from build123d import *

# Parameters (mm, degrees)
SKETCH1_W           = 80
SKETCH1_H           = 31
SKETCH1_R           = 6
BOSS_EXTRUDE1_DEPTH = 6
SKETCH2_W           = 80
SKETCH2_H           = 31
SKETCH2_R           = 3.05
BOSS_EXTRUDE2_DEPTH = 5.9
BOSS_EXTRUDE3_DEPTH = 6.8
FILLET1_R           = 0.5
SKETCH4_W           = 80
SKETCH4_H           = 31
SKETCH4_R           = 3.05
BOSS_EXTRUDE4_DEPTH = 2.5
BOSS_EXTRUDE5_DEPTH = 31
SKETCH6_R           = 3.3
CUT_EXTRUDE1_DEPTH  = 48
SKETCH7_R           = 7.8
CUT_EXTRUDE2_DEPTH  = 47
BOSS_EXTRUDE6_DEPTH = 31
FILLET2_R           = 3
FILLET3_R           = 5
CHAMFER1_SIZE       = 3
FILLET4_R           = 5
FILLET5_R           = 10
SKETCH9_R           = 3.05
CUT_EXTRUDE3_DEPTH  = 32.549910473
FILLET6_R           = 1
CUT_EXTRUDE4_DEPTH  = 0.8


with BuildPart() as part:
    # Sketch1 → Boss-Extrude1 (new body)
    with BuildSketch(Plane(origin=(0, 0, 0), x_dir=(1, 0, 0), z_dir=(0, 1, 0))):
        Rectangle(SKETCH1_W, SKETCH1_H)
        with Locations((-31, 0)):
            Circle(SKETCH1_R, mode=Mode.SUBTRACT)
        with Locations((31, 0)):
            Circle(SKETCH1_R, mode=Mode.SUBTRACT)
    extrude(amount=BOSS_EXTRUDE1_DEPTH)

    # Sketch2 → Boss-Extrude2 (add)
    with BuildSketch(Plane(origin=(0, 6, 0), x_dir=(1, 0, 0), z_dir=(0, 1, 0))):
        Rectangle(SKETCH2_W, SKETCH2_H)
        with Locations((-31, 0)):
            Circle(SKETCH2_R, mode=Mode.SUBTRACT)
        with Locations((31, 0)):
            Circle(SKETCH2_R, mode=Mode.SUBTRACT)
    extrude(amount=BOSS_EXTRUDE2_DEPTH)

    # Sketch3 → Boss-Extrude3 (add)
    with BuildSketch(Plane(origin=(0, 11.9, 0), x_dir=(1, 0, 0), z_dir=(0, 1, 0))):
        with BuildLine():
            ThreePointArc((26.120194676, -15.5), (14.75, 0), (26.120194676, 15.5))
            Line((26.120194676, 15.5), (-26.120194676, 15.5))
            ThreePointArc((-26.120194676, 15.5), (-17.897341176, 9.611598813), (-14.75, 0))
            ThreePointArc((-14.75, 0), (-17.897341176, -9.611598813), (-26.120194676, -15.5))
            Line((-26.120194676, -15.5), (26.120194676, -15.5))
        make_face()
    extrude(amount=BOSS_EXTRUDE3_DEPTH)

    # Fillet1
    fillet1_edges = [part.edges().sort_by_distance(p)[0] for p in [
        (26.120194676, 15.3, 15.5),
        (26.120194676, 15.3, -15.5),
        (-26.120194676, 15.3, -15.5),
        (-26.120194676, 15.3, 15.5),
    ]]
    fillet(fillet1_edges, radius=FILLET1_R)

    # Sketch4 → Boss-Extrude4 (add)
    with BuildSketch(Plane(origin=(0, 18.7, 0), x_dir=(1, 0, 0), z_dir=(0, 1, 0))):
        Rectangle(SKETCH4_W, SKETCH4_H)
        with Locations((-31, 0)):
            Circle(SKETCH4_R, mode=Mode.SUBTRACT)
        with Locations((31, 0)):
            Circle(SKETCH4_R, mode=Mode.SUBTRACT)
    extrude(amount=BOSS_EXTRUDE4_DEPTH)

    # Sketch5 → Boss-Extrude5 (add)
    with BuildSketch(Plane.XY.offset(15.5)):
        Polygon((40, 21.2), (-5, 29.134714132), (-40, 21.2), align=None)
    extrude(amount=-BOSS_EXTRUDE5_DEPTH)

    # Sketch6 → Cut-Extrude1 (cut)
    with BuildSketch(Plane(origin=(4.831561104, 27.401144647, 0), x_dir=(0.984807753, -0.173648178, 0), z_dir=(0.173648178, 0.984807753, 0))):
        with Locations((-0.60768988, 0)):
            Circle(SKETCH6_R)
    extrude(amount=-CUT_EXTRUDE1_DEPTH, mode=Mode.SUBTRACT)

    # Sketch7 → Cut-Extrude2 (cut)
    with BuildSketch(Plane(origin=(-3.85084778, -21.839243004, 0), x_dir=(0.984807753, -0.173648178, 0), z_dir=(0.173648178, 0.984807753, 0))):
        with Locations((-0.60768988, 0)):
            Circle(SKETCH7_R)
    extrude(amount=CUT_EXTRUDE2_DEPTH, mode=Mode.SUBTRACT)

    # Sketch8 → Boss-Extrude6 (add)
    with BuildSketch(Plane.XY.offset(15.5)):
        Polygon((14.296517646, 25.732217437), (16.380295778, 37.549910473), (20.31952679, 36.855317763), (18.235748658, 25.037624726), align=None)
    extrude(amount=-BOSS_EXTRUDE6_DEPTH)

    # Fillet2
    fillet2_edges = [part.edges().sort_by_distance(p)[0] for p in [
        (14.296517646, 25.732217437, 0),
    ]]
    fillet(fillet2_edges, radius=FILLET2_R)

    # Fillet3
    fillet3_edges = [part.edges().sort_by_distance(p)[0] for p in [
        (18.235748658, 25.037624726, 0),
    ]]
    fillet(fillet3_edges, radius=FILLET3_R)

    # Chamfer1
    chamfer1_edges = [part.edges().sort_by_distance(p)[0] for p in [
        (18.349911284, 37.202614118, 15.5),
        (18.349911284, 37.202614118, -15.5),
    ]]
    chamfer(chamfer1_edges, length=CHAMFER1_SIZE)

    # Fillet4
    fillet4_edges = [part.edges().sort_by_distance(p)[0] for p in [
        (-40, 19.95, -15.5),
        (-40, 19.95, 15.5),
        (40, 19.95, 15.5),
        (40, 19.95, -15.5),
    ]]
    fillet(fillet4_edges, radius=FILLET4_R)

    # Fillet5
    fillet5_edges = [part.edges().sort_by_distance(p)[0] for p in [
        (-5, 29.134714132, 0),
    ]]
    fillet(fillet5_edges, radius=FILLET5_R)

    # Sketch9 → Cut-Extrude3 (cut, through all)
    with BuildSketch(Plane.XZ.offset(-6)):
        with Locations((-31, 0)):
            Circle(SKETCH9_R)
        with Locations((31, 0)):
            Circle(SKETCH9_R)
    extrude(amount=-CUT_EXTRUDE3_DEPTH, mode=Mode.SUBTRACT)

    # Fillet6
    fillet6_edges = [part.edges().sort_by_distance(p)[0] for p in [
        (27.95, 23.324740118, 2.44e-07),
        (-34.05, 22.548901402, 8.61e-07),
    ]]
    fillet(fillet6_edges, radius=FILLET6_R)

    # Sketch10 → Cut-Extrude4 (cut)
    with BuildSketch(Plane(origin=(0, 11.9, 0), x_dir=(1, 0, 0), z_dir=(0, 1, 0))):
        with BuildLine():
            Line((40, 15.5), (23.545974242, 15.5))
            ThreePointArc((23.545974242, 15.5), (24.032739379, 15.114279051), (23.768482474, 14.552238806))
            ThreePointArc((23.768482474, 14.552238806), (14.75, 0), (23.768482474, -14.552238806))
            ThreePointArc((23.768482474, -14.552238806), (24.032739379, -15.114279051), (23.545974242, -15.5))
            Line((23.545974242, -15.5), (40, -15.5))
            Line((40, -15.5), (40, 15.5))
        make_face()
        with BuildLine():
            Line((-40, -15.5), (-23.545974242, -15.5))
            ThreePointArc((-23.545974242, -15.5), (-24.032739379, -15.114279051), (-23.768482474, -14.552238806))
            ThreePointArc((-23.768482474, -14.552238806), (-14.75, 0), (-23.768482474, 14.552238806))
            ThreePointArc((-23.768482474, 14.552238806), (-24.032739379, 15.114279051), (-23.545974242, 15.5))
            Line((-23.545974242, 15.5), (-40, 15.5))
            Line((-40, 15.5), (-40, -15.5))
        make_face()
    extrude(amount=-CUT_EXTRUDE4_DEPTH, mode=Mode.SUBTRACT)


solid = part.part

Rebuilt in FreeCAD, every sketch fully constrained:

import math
import FreeCAD as App
import Part
import Sketcher
from FreeCAD import Vector
Q = App.Units.Quantity


def edges_at(feature, points):
    """Names of the edges that pass closest to the given points."""
    edges = feature.Shape.Edges
    near = lambda p: min(range(len(edges)), key=lambda i: edges[i].distToShape(Part.Vertex(*p))[0])
    return sorted({f"Edge{near(p) + 1}" for p in points})

doc = App.newDocument("Part")
params = doc.addObject("Spreadsheet::Sheet", "Params")
for row, (alias, value) in enumerate([
    ("sketch1_diameter", "12 mm"),
    ("sketch1_width", "80 mm"),
    ("sketch1_height", "31 mm"),
    ("pad1_length", "6 mm"),
    ("sketch2_diameter", "6.1 mm"),
    ("sketch2_width", "80 mm"),
    ("sketch2_height", "31 mm"),
    ("pad2_length", "5.9 mm"),
    ("sketch3_radius", "16.25 mm"),
    ("pad3_length", "6.8 mm"),
    ("fillet_radius", "0.5 mm"),
    ("sketch4_diameter", "6.1 mm"),
    ("sketch4_width", "80 mm"),
    ("sketch4_height", "31 mm"),
    ("pad4_length", "2.5 mm"),
    ("sketch5_width", "80 mm"),
    ("pad5_length", "31 mm"),
    ("sketch6_diameter", "6.6 mm"),
    ("pocket1_length", "48 mm"),
    ("sketch7_diameter", "15.6 mm"),
    ("pocket2_length", "47 mm"),
    ("sketch8_length", "12 mm"),
    ("sketch8_length2", "4 mm"),
    ("pad6_length", "31 mm"),
    ("fillet2_radius", "3 mm"),
    ("fillet3_radius", "5 mm"),
    ("chamfer_size", "3 mm"),
    ("fillet4_radius", "5 mm"),
    ("fillet5_radius", "10 mm"),
    ("sketch9_diameter", "6.1 mm"),
    ("fillet6_radius", "1 mm"),
    ("sketch10_radius", "0.5 mm"),
    ("sketch10_height", "31 mm"),
    ("sketch10_radius2", "16.25 mm"),
    ("pocket4_length", "0.8 mm"),
], start=1):
    params.set(f"A{row}", alias)
    params.set(f"B{row}", "=" + value)
    params.setAlias(f"B{row}", alias)

body = doc.addObject("PartDesign::Body", "Body")

# Sketch on XZ plane
sketch1 = body.newObject("Sketcher::SketchObject", "Sketch")
sketch1.AttachmentSupport = (doc.getObject("XZ_Plane"), [""])
sketch1.MapMode = "FlatFace"
sketch1.addGeometry([
    Part.LineSegment(Vector(-40, -15.5, 0), Vector(-40, 15.5, 0)),  # 0
    Part.LineSegment(Vector(-40, 15.5, 0), Vector(40, 15.5, 0)),  # 1
    Part.LineSegment(Vector(40, 15.5, 0), Vector(40, -15.5, 0)),  # 2
    Part.LineSegment(Vector(40, -15.5, 0), Vector(-40, -15.5, 0)),  # 3
    Part.Circle(Vector(-31, 0, 0), Vector(0, 0, 1), 6),  # 4
    Part.Circle(Vector(31, 0, 0), Vector(0, 0, 1), 6),  # 5
], False)
sketch1.addConstraint([
    Sketcher.Constraint("Coincident", 0, 2, 1, 1),
    Sketcher.Constraint("Coincident", 1, 2, 2, 1),
    Sketcher.Constraint("Coincident", 2, 2, 3, 1),
    Sketcher.Constraint("Coincident", 3, 2, 0, 1),
    Sketcher.Constraint("Vertical", 0),
    Sketcher.Constraint("Horizontal", 1),
    Sketcher.Constraint("Vertical", 2),
    Sketcher.Constraint("Horizontal", 3),
    Sketcher.Constraint("Equal", 4, 5),
    Sketcher.Constraint("Symmetric", 4, 3, 5, 3, -1, 1),
    Sketcher.Constraint("Symmetric", 0, 2, 2, 2, -1, 1),
    Sketcher.Constraint("PointOnObject", 4, 3, -1),
    Sketcher.Constraint("Diameter", 4, Q("12 mm")),
    Sketcher.Constraint("DistanceX", 1, 1, 1, 2, Q("80 mm")),
    Sketcher.Constraint("DistanceY", 0, 1, 0, 2, Q("31 mm")),
    Sketcher.Constraint("DistanceX", 4, 3, -1, 1, Q("31 mm")),
])
sketch1.setExpression("Constraints[12]", "Params.sketch1_diameter")
sketch1.setExpression("Constraints[13]", "Params.sketch1_width")
sketch1.setExpression("Constraints[14]", "Params.sketch1_height")
pad1 = body.newObject("PartDesign::Pad", "Pad")
pad1.Profile = sketch1
pad1.setExpression("Length", "Params.pad1_length")
pad1.Reversed = True

# Sketch on XZ plane
sketch2 = body.newObject("Sketcher::SketchObject", "Sketch001")
sketch2.AttachmentSupport = (doc.getObject("XZ_Plane"), [""])
sketch2.MapMode = "FlatFace"
sketch2.AttachmentOffset = App.Placement(Vector(0, 0, -6), App.Rotation())
sketch2.addGeometry([
    Part.LineSegment(Vector(-40, -15.5, 0), Vector(-40, 15.5, 0)),  # 0
    Part.LineSegment(Vector(-40, 15.5, 0), Vector(40, 15.5, 0)),  # 1
    Part.LineSegment(Vector(40, 15.5, 0), Vector(40, -15.5, 0)),  # 2
    Part.LineSegment(Vector(40, -15.5, 0), Vector(-40, -15.5, 0)),  # 3
    Part.Circle(Vector(-31, 0, 0), Vector(0, 0, 1), 3.05),  # 4
    Part.Circle(Vector(31, 0, 0), Vector(0, 0, 1), 3.05),  # 5
], False)
sketch2.addConstraint([
    Sketcher.Constraint("Coincident", 0, 2, 1, 1),
    Sketcher.Constraint("Coincident", 1, 2, 2, 1),
    Sketcher.Constraint("Coincident", 2, 2, 3, 1),
    Sketcher.Constraint("Coincident", 3, 2, 0, 1),
    Sketcher.Constraint("Vertical", 0),
    Sketcher.Constraint("Horizontal", 1),
    Sketcher.Constraint("Vertical", 2),
    Sketcher.Constraint("Horizontal", 3),
    Sketcher.Constraint("Equal", 4, 5),
    Sketcher.Constraint("Symmetric", 4, 3, 5, 3, -1, 1),
    Sketcher.Constraint("Symmetric", 0, 2, 2, 2, -1, 1),
    Sketcher.Constraint("PointOnObject", 4, 3, -1),
    Sketcher.Constraint("Diameter", 4, Q("6.1 mm")),
    Sketcher.Constraint("DistanceX", 1, 1, 1, 2, Q("80 mm")),
    Sketcher.Constraint("DistanceY", 0, 1, 0, 2, Q("31 mm")),
    Sketcher.Constraint("DistanceX", 4, 3, -1, 1, Q("31 mm")),
])
sketch2.setExpression("Constraints[12]", "Params.sketch2_diameter")
sketch2.setExpression("Constraints[13]", "Params.sketch2_width")
sketch2.setExpression("Constraints[14]", "Params.sketch2_height")
pad2 = body.newObject("PartDesign::Pad", "Pad001")
pad2.Profile = sketch2
pad2.setExpression("Length", "Params.pad2_length")
pad2.Reversed = True

# Sketch on XZ plane
sketch3 = body.newObject("Sketcher::SketchObject", "Sketch002")
sketch3.AttachmentSupport = (doc.getObject("XZ_Plane"), [""])
sketch3.MapMode = "FlatFace"
sketch3.AttachmentOffset = App.Placement(Vector(0, 0, -11.9), App.Rotation())
sketch3.addGeometry([
    Part.ArcOfCircle(Part.Circle(Vector(31, 0, 0), Vector(0, 0, 1), 16.25), math.radians(107.475365), math.radians(252.524635)),  # 0
    Part.LineSegment(Vector(26.120195, -15.5, 0), Vector(-26.120195, -15.5, 0)),  # 1
    Part.ArcOfCircle(Part.Circle(Vector(-31, 0, 0), Vector(0, 0, 1), 16.25), math.radians(-72.524635), math.radians(0)),  # 2
    Part.ArcOfCircle(Part.Circle(Vector(-31, 0, 0), Vector(0, 0, 1), 16.25), math.radians(0), math.radians(72.524635)),  # 3
    Part.LineSegment(Vector(-26.120195, 15.5, 0), Vector(26.120195, 15.5, 0)),  # 4
], False)
sketch3.addConstraint([
    Sketcher.Constraint("Coincident", 0, 2, 1, 1),
    Sketcher.Constraint("Coincident", 1, 2, 2, 1),
    Sketcher.Constraint("Tangent", 2, 2, 3, 1),
    Sketcher.Constraint("Coincident", 3, 2, 4, 1),
    Sketcher.Constraint("Coincident", 4, 2, 0, 1),
    Sketcher.Constraint("Horizontal", 1),
    Sketcher.Constraint("Horizontal", 4),
    Sketcher.Constraint("Equal", 0, 2),
    Sketcher.Constraint("Equal", 2, 3),
    Sketcher.Constraint("Symmetric", 0, 3, 2, 3, -1, 1),
    Sketcher.Constraint("Symmetric", 1, 2, 3, 2, -1),
    Sketcher.Constraint("PointOnObject", 2, 2, -1),
    Sketcher.Constraint("Radius", 0, Q("16.25 mm")),
    Sketcher.Constraint("DistanceX", -1, 1, 0, 3, Q("31 mm")),
    Sketcher.Constraint("DistanceY", 1, 2, 3, 2, Q("31 mm")),
])
sketch3.setExpression("Constraints[12]", "Params.sketch3_radius")
pad3 = body.newObject("PartDesign::Pad", "Pad002")
pad3.Profile = sketch3
pad3.setExpression("Length", "Params.pad3_length")
pad3.Reversed = True
doc.recompute()

fillet = body.newObject("PartDesign::Fillet", "Fillet")
fillet.Base = (pad3, edges_at(pad3, [
    (26.12, 15.3, 15.5),
    (26.12, 15.3, -15.5),
    (-26.12, 15.3, -15.5),
    (-26.12, 15.3, 15.5),
]))
fillet.setExpression("Radius", "Params.fillet_radius")

# Sketch on XZ plane
sketch4 = body.newObject("Sketcher::SketchObject", "Sketch003")
sketch4.AttachmentSupport = (doc.getObject("XZ_Plane"), [""])
sketch4.MapMode = "FlatFace"
sketch4.AttachmentOffset = App.Placement(Vector(0, 0, -18.7), App.Rotation())
sketch4.addGeometry([
    Part.LineSegment(Vector(-40, -15.5, 0), Vector(-40, 15.5, 0)),  # 0
    Part.LineSegment(Vector(-40, 15.5, 0), Vector(40, 15.5, 0)),  # 1
    Part.LineSegment(Vector(40, 15.5, 0), Vector(40, -15.5, 0)),  # 2
    Part.LineSegment(Vector(40, -15.5, 0), Vector(-40, -15.5, 0)),  # 3
    Part.Circle(Vector(-31, 0, 0), Vector(0, 0, 1), 3.05),  # 4
    Part.Circle(Vector(31, 0, 0), Vector(0, 0, 1), 3.05),  # 5
], False)
sketch4.addConstraint([
    Sketcher.Constraint("Coincident", 0, 2, 1, 1),
    Sketcher.Constraint("Coincident", 1, 2, 2, 1),
    Sketcher.Constraint("Coincident", 2, 2, 3, 1),
    Sketcher.Constraint("Coincident", 3, 2, 0, 1),
    Sketcher.Constraint("Vertical", 0),
    Sketcher.Constraint("Horizontal", 1),
    Sketcher.Constraint("Vertical", 2),
    Sketcher.Constraint("Horizontal", 3),
    Sketcher.Constraint("Equal", 4, 5),
    Sketcher.Constraint("Symmetric", 4, 3, 5, 3, -1, 1),
    Sketcher.Constraint("Symmetric", 0, 2, 2, 2, -1, 1),
    Sketcher.Constraint("PointOnObject", 4, 3, -1),
    Sketcher.Constraint("Diameter", 4, Q("6.1 mm")),
    Sketcher.Constraint("DistanceX", 1, 1, 1, 2, Q("80 mm")),
    Sketcher.Constraint("DistanceY", 0, 1, 0, 2, Q("31 mm")),
    Sketcher.Constraint("DistanceX", 4, 3, -1, 1, Q("31 mm")),
])
sketch4.setExpression("Constraints[12]", "Params.sketch4_diameter")
sketch4.setExpression("Constraints[13]", "Params.sketch4_width")
sketch4.setExpression("Constraints[14]", "Params.sketch4_height")
pad4 = body.newObject("PartDesign::Pad", "Pad003")
pad4.Profile = sketch4
pad4.setExpression("Length", "Params.pad4_length")
pad4.Reversed = True

# Sketch on XY plane
sketch5 = body.newObject("Sketcher::SketchObject", "Sketch004")
sketch5.AttachmentSupport = (doc.getObject("XY_Plane"), [""])
sketch5.MapMode = "FlatFace"
sketch5.AttachmentOffset = App.Placement(Vector(0, 0, 15.5), App.Rotation())
sketch5.addGeometry([
    Part.LineSegment(Vector(40, 21.2, 0), Vector(-5, 29.134714, 0)),
    Part.LineSegment(Vector(-5, 29.134714, 0), Vector(-40, 21.2, 0)),
    Part.LineSegment(Vector(-40, 21.2, 0), Vector(40, 21.2, 0)),
], False)
sketch5.addConstraint([
    Sketcher.Constraint("Coincident", 0, 2, 1, 1),
    Sketcher.Constraint("Coincident", 1, 2, 2, 1),
    Sketcher.Constraint("Coincident", 2, 2, 0, 1),
    Sketcher.Constraint("Horizontal", 2),
    Sketcher.Constraint("DistanceX", 2, 1, 2, 2, Q("80 mm")),
    Sketcher.Constraint("Angle", 0, Q("170 deg")),
    Sketcher.Constraint("DistanceX", 0, 2, -1, 1, Q("5 mm")),
    Sketcher.Constraint("DistanceX", 1, 2, -1, 1, Q("40 mm")),
    Sketcher.Constraint("DistanceY", -1, 1, 1, 2, Q("21.2 mm")),
])
sketch5.setExpression("Constraints[4]", "Params.sketch5_width")
pad5 = body.newObject("PartDesign::Pad", "Pad004")
pad5.Profile = sketch5
pad5.setExpression("Length", "Params.pad5_length")
pad5.Reversed = True

# Sketch on an angled plane
sketch6 = body.newObject("Sketcher::SketchObject", "Sketch005")
sketch6.Placement = App.Placement(Vector(4.831561, 27.401145, 0), App.Rotation(Vector(0.984807753, -0.173648178, 0), Vector(0, 0, -1), Vector(0.173648178, 0.984807753, 0), "ZXY"))
sketch6.addGeometry(Part.Circle(Vector(-0.60769, 0, 0), Vector(0, 0, 1), 3.3), False)
sketch6.addConstraint([
    Sketcher.Constraint("PointOnObject", 0, 3, -1),
    Sketcher.Constraint("Diameter", 0, Q("6.6 mm")),
    Sketcher.Constraint("DistanceX", 0, 3, -1, 1, Q("0.60769 mm")),
])
sketch6.setExpression("Constraints[1]", "Params.sketch6_diameter")
pocket1 = body.newObject("PartDesign::Pocket", "Pocket")
pocket1.Profile = sketch6
pocket1.setExpression("Length", "Params.pocket1_length")

# Sketch on an angled plane
sketch7 = body.newObject("Sketcher::SketchObject", "Sketch006")
sketch7.Placement = App.Placement(Vector(-3.850848, -21.839243, 0), App.Rotation(Vector(0.984807753, -0.173648178, 0), Vector(0, 0, -1), Vector(0.173648178, 0.984807753, 0), "ZXY"))
sketch7.addGeometry(Part.Circle(Vector(-0.60769, 0, 0), Vector(0, 0, 1), 7.8), False)
sketch7.addConstraint([
    Sketcher.Constraint("PointOnObject", 0, 3, -1),
    Sketcher.Constraint("Diameter", 0, Q("15.6 mm")),
    Sketcher.Constraint("DistanceX", 0, 3, -1, 1, Q("0.60769 mm")),
])
sketch7.setExpression("Constraints[1]", "Params.sketch7_diameter")
pocket2 = body.newObject("PartDesign::Pocket", "Pocket001")
pocket2.Profile = sketch7
pocket2.setExpression("Length", "Params.pocket2_length")
pocket2.Reversed = True

# Sketch on XY plane
sketch8 = body.newObject("Sketcher::SketchObject", "Sketch007")
sketch8.AttachmentSupport = (doc.getObject("XY_Plane"), [""])
sketch8.MapMode = "FlatFace"
sketch8.AttachmentOffset = App.Placement(Vector(0, 0, 15.5), App.Rotation())
sketch8.addGeometry([
    Part.LineSegment(Vector(16.380296, 37.54991, 0), Vector(14.296518, 25.732217, 0)),
    Part.LineSegment(Vector(14.296518, 25.732217, 0), Vector(18.235749, 25.037625, 0)),
    Part.LineSegment(Vector(18.235749, 25.037625, 0), Vector(20.319527, 36.855318, 0)),
    Part.LineSegment(Vector(20.319527, 36.855318, 0), Vector(16.380296, 37.54991, 0)),
], False)
sketch8.addConstraint([
    Sketcher.Constraint("Coincident", 0, 2, 1, 1),
    Sketcher.Constraint("Coincident", 1, 2, 2, 1),
    Sketcher.Constraint("Coincident", 2, 2, 3, 1),
    Sketcher.Constraint("Coincident", 3, 2, 0, 1),
    Sketcher.Constraint("Perpendicular", 0, 1),
    Sketcher.Constraint("Perpendicular", 1, 2),
    Sketcher.Constraint("Perpendicular", 2, 3),
    Sketcher.Constraint("Angle", 0, Q("-100 deg")),
    Sketcher.Constraint("Distance", 0, Q("12 mm")),
    Sketcher.Constraint("Distance", 1, Q("4 mm")),
    Sketcher.Constraint("DistanceX", -1, 1, 1, 2, Q("18.235749 mm")),
    Sketcher.Constraint("DistanceY", -1, 1, 3, 2, Q("37.54991 mm")),
])
sketch8.setExpression("Constraints[8]", "Params.sketch8_length")
sketch8.setExpression("Constraints[9]", "Params.sketch8_length2")
pad6 = body.newObject("PartDesign::Pad", "Pad005")
pad6.Profile = sketch8
pad6.setExpression("Length", "Params.pad6_length")
pad6.Reversed = True
doc.recompute()

fillet2 = body.newObject("PartDesign::Fillet", "Fillet001")
fillet2.Base = (pad6, edges_at(pad6, [(14.297, 25.732, 0)]))
fillet2.setExpression("Radius", "Params.fillet2_radius")
doc.recompute()

fillet3 = body.newObject("PartDesign::Fillet", "Fillet002")
fillet3.Base = (fillet2, edges_at(fillet2, [(18.236, 25.038, 0)]))
fillet3.setExpression("Radius", "Params.fillet3_radius")
doc.recompute()

chamfer = body.newObject("PartDesign::Chamfer", "Chamfer")
chamfer.Base = (fillet3, edges_at(fillet3, [(18.35, 37.203, 15.5), (18.35, 37.203, -15.5)]))
chamfer.setExpression("Size", "Params.chamfer_size")
doc.recompute()

fillet4 = body.newObject("PartDesign::Fillet", "Fillet003")
fillet4.Base = (chamfer, edges_at(chamfer, [
    (-40, 19.95, -15.5),
    (-40, 19.95, 15.5),
    (40, 19.95, 15.5),
    (40, 19.95, -15.5),
]))
fillet4.setExpression("Radius", "Params.fillet4_radius")
doc.recompute()

fillet5 = body.newObject("PartDesign::Fillet", "Fillet004")
fillet5.Base = (fillet4, edges_at(fillet4, [(-5, 29.135, 0)]))
fillet5.setExpression("Radius", "Params.fillet5_radius")

# Sketch on XZ plane
sketch9 = body.newObject("Sketcher::SketchObject", "Sketch008")
sketch9.AttachmentSupport = (doc.getObject("XZ_Plane"), [""])
sketch9.MapMode = "FlatFace"
sketch9.AttachmentOffset = App.Placement(Vector(0, 0, -6), App.Rotation())
sketch9.addGeometry([
    Part.Circle(Vector(-31, 0, 0), Vector(0, 0, 1), 3.05),
    Part.Circle(Vector(31, 0, 0), Vector(0, 0, 1), 3.05),
], False)
sketch9.addConstraint([
    Sketcher.Constraint("Equal", 0, 1),
    Sketcher.Constraint("Symmetric", 0, 3, 1, 3, -1, 1),
    Sketcher.Constraint("PointOnObject", 0, 3, -1),
    Sketcher.Constraint("Diameter", 0, Q("6.1 mm")),
    Sketcher.Constraint("DistanceX", 0, 3, -1, 1, Q("31 mm")),
])
sketch9.setExpression("Constraints[3]", "Params.sketch9_diameter")
pocket3 = body.newObject("PartDesign::Pocket", "Pocket002")
pocket3.Profile = sketch9
pocket3.Type = "ThroughAll"
doc.recompute()

fillet6 = body.newObject("PartDesign::Fillet", "Fillet005")
fillet6.Base = (pocket3, edges_at(pocket3, [(27.95, 23.325, 0), (-34.05, 22.549, 0)]))
fillet6.setExpression("Radius", "Params.fillet6_radius")

# Sketch on XZ plane
sketch10 = body.newObject("Sketcher::SketchObject", "Sketch009")
sketch10.AttachmentSupport = (doc.getObject("XZ_Plane"), [""])
sketch10.MapMode = "FlatFace"
sketch10.AttachmentOffset = App.Placement(Vector(0, 0, -11.9), App.Rotation())
sketch10.addGeometry([
    Part.LineSegment(Vector(40, -15.5, 0), Vector(23.545974, -15.5, 0)),  # 0
    Part.ArcOfCircle(Part.Circle(Vector(23.545974, -15, 0), Vector(0, 0, 1), 0.5), math.radians(-90), math.radians(63.575608)),  # 1
    Part.ArcOfCircle(Part.Circle(Vector(31, 0, 0), Vector(0, 0, 1), 16.25), math.radians(116.424392), math.radians(243.575608)),  # 2
    Part.ArcOfCircle(Part.Circle(Vector(23.545974, 15, 0), Vector(0, 0, 1), 0.5), math.radians(-63.575608), math.radians(90)),  # 3
    Part.LineSegment(Vector(23.545974, 15.5, 0), Vector(40, 15.5, 0)),  # 4
    Part.LineSegment(Vector(40, 15.5, 0), Vector(40, -15.5, 0)),  # 5
    Part.LineSegment(Vector(-40, 15.5, 0), Vector(-23.545974, 15.5, 0)),  # 6
    Part.ArcOfCircle(Part.Circle(Vector(-23.545974, 15, 0), Vector(0, 0, 1), 0.5), math.radians(90), math.radians(243.575608)),  # 7
    Part.ArcOfCircle(Part.Circle(Vector(-31, 0, 0), Vector(0, 0, 1), 16.25), math.radians(-63.575608), math.radians(63.575608)),  # 8
    Part.ArcOfCircle(Part.Circle(Vector(-23.545974, -15, 0), Vector(0, 0, 1), 0.5), math.radians(116.424392), math.radians(270)),  # 9
    Part.LineSegment(Vector(-23.545974, -15.5, 0), Vector(-40, -15.5, 0)),  # 10
    Part.LineSegment(Vector(-40, -15.5, 0), Vector(-40, 15.5, 0)),  # 11
], False)
sketch10.addConstraint([
    Sketcher.Constraint("Tangent", 0, 2, 1, 1),
    Sketcher.Constraint("Tangent", 1, 2, 2, 2),
    Sketcher.Constraint("Tangent", 2, 1, 3, 1),
    Sketcher.Constraint("Tangent", 3, 2, 4, 1),
    Sketcher.Constraint("Coincident", 4, 2, 5, 1),
    Sketcher.Constraint("Coincident", 5, 2, 0, 1),
    Sketcher.Constraint("Tangent", 6, 2, 7, 1),
    Sketcher.Constraint("Tangent", 7, 2, 8, 2),
    Sketcher.Constraint("Tangent", 8, 1, 9, 1),
    Sketcher.Constraint("Tangent", 9, 2, 10, 1),
    Sketcher.Constraint("Coincident", 10, 2, 11, 1),
    Sketcher.Constraint("Coincident", 11, 2, 6, 1),
    Sketcher.Constraint("Horizontal", 0),
    Sketcher.Constraint("Horizontal", 4),
    Sketcher.Constraint("Vertical", 5),
    Sketcher.Constraint("Horizontal", 6),
    Sketcher.Constraint("Horizontal", 10),
    Sketcher.Constraint("Vertical", 11),
    Sketcher.Constraint("Equal", 1, 3),
    Sketcher.Constraint("Equal", 3, 7),
    Sketcher.Constraint("Equal", 2, 8),
    Sketcher.Constraint("Equal", 7, 9),
    Sketcher.Constraint("Symmetric", 1, 3, 7, 3, -1, 1),
    Sketcher.Constraint("Symmetric", 3, 3, 9, 3, -1, 1),
    Sketcher.Constraint("Symmetric", 3, 3, 7, 3, -2),
    Sketcher.Constraint("Equal", 4, 6),
    Sketcher.Constraint("Radius", 1, Q("0.5 mm")),
    Sketcher.Constraint("DistanceY", 5, 2, 5, 1, Q("31 mm")),
    Sketcher.Constraint("Radius", 2, Q("16.25 mm")),
    Sketcher.Constraint("DistanceX", -1, 1, 2, 3, Q("31 mm")),
    Sketcher.Constraint("DistanceX", -1, 1, 4, 2, Q("40 mm")),
])
sketch10.setExpression("Constraints[26]", "Params.sketch10_radius")
sketch10.setExpression("Constraints[27]", "Params.sketch10_height")
sketch10.setExpression("Constraints[28]", "Params.sketch10_radius2")
pocket4 = body.newObject("PartDesign::Pocket", "Pocket003")
pocket4.Profile = sketch10
pocket4.setExpression("Length", "Params.pocket4_length")
pocket4.Reversed = True

doc.recompute()
